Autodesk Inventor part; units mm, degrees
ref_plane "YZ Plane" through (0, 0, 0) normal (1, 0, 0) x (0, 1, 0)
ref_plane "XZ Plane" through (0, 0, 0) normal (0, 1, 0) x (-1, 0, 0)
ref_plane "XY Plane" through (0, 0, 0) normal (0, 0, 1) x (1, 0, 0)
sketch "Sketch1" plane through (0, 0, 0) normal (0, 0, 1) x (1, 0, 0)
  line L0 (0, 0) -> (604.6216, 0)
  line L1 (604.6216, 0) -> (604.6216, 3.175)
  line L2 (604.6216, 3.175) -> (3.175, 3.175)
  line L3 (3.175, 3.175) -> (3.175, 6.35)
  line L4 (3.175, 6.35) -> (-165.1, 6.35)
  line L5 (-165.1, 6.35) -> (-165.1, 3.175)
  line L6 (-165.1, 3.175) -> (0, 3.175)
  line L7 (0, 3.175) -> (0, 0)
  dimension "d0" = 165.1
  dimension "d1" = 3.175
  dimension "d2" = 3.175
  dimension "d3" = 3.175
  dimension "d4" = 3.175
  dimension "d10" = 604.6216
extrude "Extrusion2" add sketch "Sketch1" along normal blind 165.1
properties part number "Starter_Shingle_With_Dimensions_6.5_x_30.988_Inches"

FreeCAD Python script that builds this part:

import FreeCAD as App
import Part
import Sketcher

V = App.Vector
Q = App.Units.Quantity


def add_polygon(sketch, points):
    """Adds a closed chain of lines whose ends are joined by coincident constraints."""
    first, n = sketch.GeometryCount, len(points)
    for a, b in zip(points, points[1:] + points[:1]):
        sketch.addGeometry(Part.LineSegment(App.Vector(*a, 0), App.Vector(*b, 0)), False)
    for i in range(n):
        sketch.addConstraint(Sketcher.Constraint("Coincident", first + i, 2, first + (i + 1) % n, 1))

doc = App.newDocument("Part")
body = doc.addObject("PartDesign::Body", "Body")

# Sketch on XY plane
sketch1 = body.newObject("Sketcher::SketchObject", "Sketch")
sketch1.AttachmentSupport = (doc.getObject("XY_Plane"), [""])
sketch1.MapMode = "FlatFace"
add_polygon(sketch1, [(0, 3.2), (0, 0), (604.6, 0), (604.6, 3.2), (3.2, 3.2), (3.2, 6.3), (-165.1, 6.3), (-165.1, 3.2)])  # lines 0-7
sketch1.addConstraint([
    Sketcher.Constraint("Vertical", 0),
    Sketcher.Constraint("Horizontal", 1),
    Sketcher.Constraint("Vertical", 2),
    Sketcher.Constraint("Horizontal", 3),
    Sketcher.Constraint("Vertical", 4),
    Sketcher.Constraint("Horizontal", 5),
    Sketcher.Constraint("Vertical", 6),
    Sketcher.Constraint("Horizontal", 7),
    Sketcher.Constraint("Coincident", 0, 2, -1, 1),
    Sketcher.Constraint("Horizontal", 3, 2, 6, 2),
    Sketcher.Constraint("Equal", 2, 4),
    Sketcher.Constraint("DistanceX", 7, 1, 7, 2, Q("6.5 in")),
    Sketcher.Constraint("DistanceX", 1, 1, 1, 2, Q("23.804 in")),
    Sketcher.Constraint("DistanceY", 0, 2, 0, 1, Q("0.125 in")),
    Sketcher.Constraint("DistanceX", -1, 1, 3, 2, Q("0.125 in")),
])
pad1 = body.newObject("PartDesign::Pad", "Pad")
pad1.Profile = sketch1
pad1.Length = Q("6.5 in")

doc.recompute()
